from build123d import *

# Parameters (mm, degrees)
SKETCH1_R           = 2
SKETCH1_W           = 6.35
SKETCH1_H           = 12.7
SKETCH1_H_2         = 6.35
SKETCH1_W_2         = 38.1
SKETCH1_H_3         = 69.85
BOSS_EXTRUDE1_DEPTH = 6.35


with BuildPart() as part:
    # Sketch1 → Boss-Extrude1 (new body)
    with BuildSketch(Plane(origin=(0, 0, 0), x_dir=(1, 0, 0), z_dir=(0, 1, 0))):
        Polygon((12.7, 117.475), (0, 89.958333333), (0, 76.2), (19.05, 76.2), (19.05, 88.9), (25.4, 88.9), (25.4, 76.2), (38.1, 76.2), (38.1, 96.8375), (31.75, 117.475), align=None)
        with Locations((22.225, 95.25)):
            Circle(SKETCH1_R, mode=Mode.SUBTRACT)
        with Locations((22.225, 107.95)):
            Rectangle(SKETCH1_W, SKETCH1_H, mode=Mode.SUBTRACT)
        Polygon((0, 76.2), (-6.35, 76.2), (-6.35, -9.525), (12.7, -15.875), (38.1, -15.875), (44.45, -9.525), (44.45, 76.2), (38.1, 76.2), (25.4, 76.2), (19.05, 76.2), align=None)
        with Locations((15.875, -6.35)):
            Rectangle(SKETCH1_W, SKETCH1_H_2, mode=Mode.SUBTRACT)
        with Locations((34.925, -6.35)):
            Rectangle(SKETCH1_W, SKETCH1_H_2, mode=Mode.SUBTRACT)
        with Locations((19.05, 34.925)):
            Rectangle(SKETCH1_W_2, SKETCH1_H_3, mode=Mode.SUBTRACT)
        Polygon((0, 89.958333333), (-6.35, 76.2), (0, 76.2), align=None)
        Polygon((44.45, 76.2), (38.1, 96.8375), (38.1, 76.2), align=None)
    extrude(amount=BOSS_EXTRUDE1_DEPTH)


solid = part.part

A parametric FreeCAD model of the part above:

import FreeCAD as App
import Part
import Sketcher
Q = App.Units.Quantity

doc = App.newDocument("Part")
body = doc.addObject("PartDesign::Body", "Body")

sketch1 = body.newObject("Sketcher::SketchObject", "Sketch")
sketch1.AttachmentSupport = (doc.getObject("XZ_Plane"), [""])
sketch1.MapMode = "FlatFace"
sketch1.addGeometry(Part.LineSegment(App.Vector(12.7, -117.5, 0), App.Vector(0, -90, 0)), False)
sketch1.addGeometry(Part.LineSegment(App.Vector(0, -90, 0), App.Vector(-6.3, -76.2, 0)), False)
sketch1.addGeometry(Part.LineSegment(App.Vector(-6.3, -76.2, 0), App.Vector(-6.3, 9.5, 0)), False)
sketch1.addGeometry(Part.LineSegment(App.Vector(-6.3, 9.5, 0), App.Vector(12.7, 15.9, 0)), False)
sketch1.addGeometry(Part.LineSegment(App.Vector(12.7, 15.9, 0), App.Vector(38.1, 15.9, 0)), False)
sketch1.addGeometry(Part.LineSegment(App.Vector(38.1, 15.9, 0), App.Vector(44.5, 9.5, 0)), False)
sketch1.addGeometry(Part.LineSegment(App.Vector(44.5, 9.5, 0), App.Vector(44.5, -76.2, 0)), False)
sketch1.addGeometry(Part.LineSegment(App.Vector(44.5, -76.2, 0), App.Vector(31.8, -117.5, 0)), False)
sketch1.addGeometry(Part.LineSegment(App.Vector(31.8, -117.5, 0), App.Vector(12.7, -117.5, 0)), False)
sketch1.addGeometry(Part.LineSegment(App.Vector(19.1, 9.5, 0), App.Vector(12.7, 9.5, 0)), False)
sketch1.addGeometry(Part.LineSegment(App.Vector(12.7, 9.5, 0), App.Vector(12.7, 3.2, 0)), False)
sketch1.addGeometry(Part.LineSegment(App.Vector(12.7, 3.2, 0), App.Vector(19.1, 3.2, 0)), False)
sketch1.addGeometry(Part.LineSegment(App.Vector(19.1, 3.2, 0), App.Vector(19.1, 9.5, 0)), False)
sketch1.addGeometry(Part.LineSegment(App.Vector(38.1, 9.5, 0), App.Vector(31.8, 9.5, 0)), False)
sketch1.addGeometry(Part.LineSegment(App.Vector(31.8, 9.5, 0), App.Vector(31.8, 3.2, 0)), False)
sketch1.addGeometry(Part.LineSegment(App.Vector(31.8, 3.2, 0), App.Vector(38.1, 3.2, 0)), False)
sketch1.addGeometry(Part.LineSegment(App.Vector(38.1, 3.2, 0), App.Vector(38.1, 9.5, 0)), False)
sketch1.addGeometry(Part.LineSegment(App.Vector(38.1, 0, 0), App.Vector(0, 0, 0)), False)
sketch1.addGeometry(Part.LineSegment(App.Vector(0, 0, 0), App.Vector(0, -69.8, 0)), False)
sketch1.addGeometry(Part.LineSegment(App.Vector(0, -69.8, 0), App.Vector(38.1, -69.8, 0)), False)
sketch1.addGeometry(Part.LineSegment(App.Vector(38.1, -69.8, 0), App.Vector(38.1, 0, 0)), False)
sketch1.addGeometry(Part.LineSegment(App.Vector(19.1, -76.2, 0), App.Vector(19.1, -88.9, 0)), False)
sketch1.addGeometry(Part.LineSegment(App.Vector(19.1, -88.9, 0), App.Vector(25.4, -88.9, 0)), False)
sketch1.addGeometry(Part.LineSegment(App.Vector(25.4, -88.9, 0), App.Vector(25.4, -76.2, 0)), False)
sketch1.addGeometry(Part.LineSegment(App.Vector(25.4, -76.2, 0), App.Vector(19.1, -76.2, 0)), False)
sketch1.addGeometry(Part.Circle(App.Vector(22.2, -95.2, 0), App.Vector(0, 0, 1), 2), False)
sketch1.addGeometry(Part.LineSegment(App.Vector(25.4, -101.6, 0), App.Vector(19.1, -101.6, 0)), False)
sketch1.addGeometry(Part.LineSegment(App.Vector(19.1, -101.6, 0), App.Vector(19.1, -114.3, 0)), False)
sketch1.addGeometry(Part.LineSegment(App.Vector(19.1, -114.3, 0), App.Vector(25.4, -114.3, 0)), False)
sketch1.addGeometry(Part.LineSegment(App.Vector(25.4, -114.3, 0), App.Vector(25.4, -101.6, 0)), False)
sketch1.addConstraint(Sketcher.Constraint("Coincident", 0, 2, 1, 1))
sketch1.addConstraint(Sketcher.Constraint("Coincident", 1, 2, 2, 1))
sketch1.addConstraint(Sketcher.Constraint("Coincident", 2, 2, 3, 1))
sketch1.addConstraint(Sketcher.Constraint("Coincident", 3, 2, 4, 1))
sketch1.addConstraint(Sketcher.Constraint("Coincident", 4, 2, 5, 1))
sketch1.addConstraint(Sketcher.Constraint("Coincident", 5, 2, 6, 1))
sketch1.addConstraint(Sketcher.Constraint("Coincident", 6, 2, 7, 1))
sketch1.addConstraint(Sketcher.Constraint("Coincident", 7, 2, 8, 1))
sketch1.addConstraint(Sketcher.Constraint("Coincident", 8, 2, 0, 1))
sketch1.addConstraint(Sketcher.Constraint("Coincident", 9, 2, 10, 1))
sketch1.addConstraint(Sketcher.Constraint("Coincident", 10, 2, 11, 1))
sketch1.addConstraint(Sketcher.Constraint("Coincident", 11, 2, 12, 1))
sketch1.addConstraint(Sketcher.Constraint("Coincident", 12, 2, 9, 1))
sketch1.addConstraint(Sketcher.Constraint("Coincident", 13, 2, 14, 1))
sketch1.addConstraint(Sketcher.Constraint("Coincident", 14, 2, 15, 1))
sketch1.addConstraint(Sketcher.Constraint("Coincident", 15, 2, 16, 1))
sketch1.addConstraint(Sketcher.Constraint("Coincident", 16, 2, 13, 1))
sketch1.addConstraint(Sketcher.Constraint("Coincident", 17, 2, 18, 1))
sketch1.addConstraint(Sketcher.Constraint("Coincident", 18, 2, 19, 1))
sketch1.addConstraint(Sketcher.Constraint("Coincident", 19, 2, 20, 1))
sketch1.addConstraint(Sketcher.Constraint("Coincident", 20, 2, 17, 1))
sketch1.addConstraint(Sketcher.Constraint("Coincident", 21, 2, 22, 1))
sketch1.addConstraint(Sketcher.Constraint("Coincident", 22, 2, 23, 1))
sketch1.addConstraint(Sketcher.Constraint("Coincident", 23, 2, 24, 1))
sketch1.addConstraint(Sketcher.Constraint("Coincident", 24, 2, 21, 1))
sketch1.addConstraint(Sketcher.Constraint("Coincident", 26, 2, 27, 1))
sketch1.addConstraint(Sketcher.Constraint("Coincident", 27, 2, 28, 1))
sketch1.addConstraint(Sketcher.Constraint("Coincident", 28, 2, 29, 1))
sketch1.addConstraint(Sketcher.Constraint("Coincident", 29, 2, 26, 1))
sketch1.addConstraint(Sketcher.Constraint("Vertical", 2))
sketch1.addConstraint(Sketcher.Constraint("Horizontal", 4))
sketch1.addConstraint(Sketcher.Constraint("Vertical", 6))
sketch1.addConstraint(Sketcher.Constraint("Horizontal", 8))
sketch1.addConstraint(Sketcher.Constraint("Horizontal", 9))
sketch1.addConstraint(Sketcher.Constraint("Vertical", 10))
sketch1.addConstraint(Sketcher.Constraint("Horizontal", 11))
sketch1.addConstraint(Sketcher.Constraint("Vertical", 12))
sketch1.addConstraint(Sketcher.Constraint("Horizontal", 13))
sketch1.addConstraint(Sketcher.Constraint("Vertical", 14))
sketch1.addConstraint(Sketcher.Constraint("Horizontal", 15))
sketch1.addConstraint(Sketcher.Constraint("Vertical", 16))
sketch1.addConstraint(Sketcher.Constraint("Horizontal", 17))
sketch1.addConstraint(Sketcher.Constraint("Vertical", 18))
sketch1.addConstraint(Sketcher.Constraint("Horizontal", 19))
sketch1.addConstraint(Sketcher.Constraint("Vertical", 20))
sketch1.addConstraint(Sketcher.Constraint("Vertical", 21))
sketch1.addConstraint(Sketcher.Constraint("Horizontal", 22))
sketch1.addConstraint(Sketcher.Constraint("Vertical", 23))
sketch1.addConstraint(Sketcher.Constraint("Horizontal", 24))
sketch1.addConstraint(Sketcher.Constraint("Horizontal", 26))
sketch1.addConstraint(Sketcher.Constraint("Vertical", 27))
sketch1.addConstraint(Sketcher.Constraint("Horizontal", 28))
sketch1.addConstraint(Sketcher.Constraint("Vertical", 29))
sketch1.addConstraint(Sketcher.Constraint("Coincident", 17, 2, -1, 1))
sketch1.addConstraint(Sketcher.Constraint("PointOnObject", 0, 2, -2))
sketch1.addConstraint(Sketcher.Constraint("Parallel", 0, 1))
sketch1.addConstraint(Sketcher.Constraint("Horizontal", 2, 2, 5, 2))
sketch1.addConstraint(Sketcher.Constraint("Horizontal", 1, 2, 6, 2))
sketch1.addConstraint(Sketcher.Constraint("Horizontal", 5, 2, 9, 2))
sketch1.addConstraint(Sketcher.Constraint("Horizontal", 12, 2, 13, 2))
sketch1.addConstraint(Sketcher.Constraint("Horizontal", 11, 2, 14, 2))
sketch1.addConstraint(Sketcher.Constraint("Horizontal", 6, 2, 23, 2))
sketch1.addConstraint(Sketcher.Constraint("Vertical", 3, 2, 8, 2))
sketch1.addConstraint(Sketcher.Constraint("Vertical", 8, 2, 9, 2))
sketch1.addConstraint(Sketcher.Constraint("Vertical", 7, 2, 13, 2))
sketch1.addConstraint(Sketcher.Constraint("Vertical", 4, 2, 15, 2))
sketch1.addConstraint(Sketcher.Constraint("Vertical", 16, 2, 19, 2))
sketch1.addConstraint(Sketcher.Constraint("Vertical", 12, 2, 21, 2))
sketch1.addConstraint(Sketcher.Constraint("Vertical", 24, 2, 26, 2))
sketch1.addConstraint(Sketcher.Constraint("Vertical", 23, 2, 28, 2))
sketch1.addConstraint(Sketcher.Constraint("Equal", 11, 13))
sketch1.addConstraint(Sketcher.Constraint("Equal", 15, 22))
sketch1.addConstraint(Sketcher.Constraint("Equal", 28, 10))
sketch1.addConstraint(Sketcher.Constraint("Equal", 23, 27))
sketch1.addConstraint(Sketcher.Constraint("DistanceX", 4, 1, 4, 2, Q("1 in")))
sketch1.addConstraint(Sketcher.Constraint("DistanceX", 17, 2, 17, 1, Q("1.5 in")))
sketch1.addConstraint(Sketcher.Constraint("DistanceY", 21, 2, 21, 1, Q("0.5 in")))
sketch1.addConstraint(Sketcher.Constraint("DistanceY", 1, 2, -1, 1, Q("3 in")))
sketch1.addConstraint(Sketcher.Constraint("DistanceX", -1, 1, 22, 2, Q("1 in")))
sketch1.addConstraint(Sketcher.Constraint("DistanceY", 26, 2, -1, 1, Q("4 in")))
sketch1.addConstraint(Sketcher.Constraint("Angle", 5, Q("-45 deg")))
sketch1.addConstraint(Sketcher.Constraint("DistanceX", 2, 2, 5, 2, Q("2 in")))
sketch1.addConstraint(Sketcher.Constraint("DistanceY", 7, 2, 5, 2, Q("5 in")))
sketch1.addConstraint(Sketcher.Constraint("DistanceX", 2, 2, 11, 2, Q("1 in")))
sketch1.addConstraint(Sketcher.Constraint("DistanceY", 25, 3, 18, 2, Q("1 in")))
sketch1.addConstraint(Sketcher.Constraint("DistanceY", 18, 2, 18, 1, Q("2.75 in")))
sketch1.addConstraint(Sketcher.Constraint("Diameter", 25, Q("4 mm")))
sketch1.addConstraint(Sketcher.Constraint("DistanceY", 2, 1, 2, 2, Q("3.375 in")))
sketch1.addConstraint(Sketcher.Constraint("DistanceX", -1, 1, 25, 3, Q("0.875 in")))
pad1 = body.newObject("PartDesign::Pad", "Pad")
pad1.Profile = sketch1
pad1.Length = Q("0.25 in")
pad1.Reversed = True

doc.recompute()
